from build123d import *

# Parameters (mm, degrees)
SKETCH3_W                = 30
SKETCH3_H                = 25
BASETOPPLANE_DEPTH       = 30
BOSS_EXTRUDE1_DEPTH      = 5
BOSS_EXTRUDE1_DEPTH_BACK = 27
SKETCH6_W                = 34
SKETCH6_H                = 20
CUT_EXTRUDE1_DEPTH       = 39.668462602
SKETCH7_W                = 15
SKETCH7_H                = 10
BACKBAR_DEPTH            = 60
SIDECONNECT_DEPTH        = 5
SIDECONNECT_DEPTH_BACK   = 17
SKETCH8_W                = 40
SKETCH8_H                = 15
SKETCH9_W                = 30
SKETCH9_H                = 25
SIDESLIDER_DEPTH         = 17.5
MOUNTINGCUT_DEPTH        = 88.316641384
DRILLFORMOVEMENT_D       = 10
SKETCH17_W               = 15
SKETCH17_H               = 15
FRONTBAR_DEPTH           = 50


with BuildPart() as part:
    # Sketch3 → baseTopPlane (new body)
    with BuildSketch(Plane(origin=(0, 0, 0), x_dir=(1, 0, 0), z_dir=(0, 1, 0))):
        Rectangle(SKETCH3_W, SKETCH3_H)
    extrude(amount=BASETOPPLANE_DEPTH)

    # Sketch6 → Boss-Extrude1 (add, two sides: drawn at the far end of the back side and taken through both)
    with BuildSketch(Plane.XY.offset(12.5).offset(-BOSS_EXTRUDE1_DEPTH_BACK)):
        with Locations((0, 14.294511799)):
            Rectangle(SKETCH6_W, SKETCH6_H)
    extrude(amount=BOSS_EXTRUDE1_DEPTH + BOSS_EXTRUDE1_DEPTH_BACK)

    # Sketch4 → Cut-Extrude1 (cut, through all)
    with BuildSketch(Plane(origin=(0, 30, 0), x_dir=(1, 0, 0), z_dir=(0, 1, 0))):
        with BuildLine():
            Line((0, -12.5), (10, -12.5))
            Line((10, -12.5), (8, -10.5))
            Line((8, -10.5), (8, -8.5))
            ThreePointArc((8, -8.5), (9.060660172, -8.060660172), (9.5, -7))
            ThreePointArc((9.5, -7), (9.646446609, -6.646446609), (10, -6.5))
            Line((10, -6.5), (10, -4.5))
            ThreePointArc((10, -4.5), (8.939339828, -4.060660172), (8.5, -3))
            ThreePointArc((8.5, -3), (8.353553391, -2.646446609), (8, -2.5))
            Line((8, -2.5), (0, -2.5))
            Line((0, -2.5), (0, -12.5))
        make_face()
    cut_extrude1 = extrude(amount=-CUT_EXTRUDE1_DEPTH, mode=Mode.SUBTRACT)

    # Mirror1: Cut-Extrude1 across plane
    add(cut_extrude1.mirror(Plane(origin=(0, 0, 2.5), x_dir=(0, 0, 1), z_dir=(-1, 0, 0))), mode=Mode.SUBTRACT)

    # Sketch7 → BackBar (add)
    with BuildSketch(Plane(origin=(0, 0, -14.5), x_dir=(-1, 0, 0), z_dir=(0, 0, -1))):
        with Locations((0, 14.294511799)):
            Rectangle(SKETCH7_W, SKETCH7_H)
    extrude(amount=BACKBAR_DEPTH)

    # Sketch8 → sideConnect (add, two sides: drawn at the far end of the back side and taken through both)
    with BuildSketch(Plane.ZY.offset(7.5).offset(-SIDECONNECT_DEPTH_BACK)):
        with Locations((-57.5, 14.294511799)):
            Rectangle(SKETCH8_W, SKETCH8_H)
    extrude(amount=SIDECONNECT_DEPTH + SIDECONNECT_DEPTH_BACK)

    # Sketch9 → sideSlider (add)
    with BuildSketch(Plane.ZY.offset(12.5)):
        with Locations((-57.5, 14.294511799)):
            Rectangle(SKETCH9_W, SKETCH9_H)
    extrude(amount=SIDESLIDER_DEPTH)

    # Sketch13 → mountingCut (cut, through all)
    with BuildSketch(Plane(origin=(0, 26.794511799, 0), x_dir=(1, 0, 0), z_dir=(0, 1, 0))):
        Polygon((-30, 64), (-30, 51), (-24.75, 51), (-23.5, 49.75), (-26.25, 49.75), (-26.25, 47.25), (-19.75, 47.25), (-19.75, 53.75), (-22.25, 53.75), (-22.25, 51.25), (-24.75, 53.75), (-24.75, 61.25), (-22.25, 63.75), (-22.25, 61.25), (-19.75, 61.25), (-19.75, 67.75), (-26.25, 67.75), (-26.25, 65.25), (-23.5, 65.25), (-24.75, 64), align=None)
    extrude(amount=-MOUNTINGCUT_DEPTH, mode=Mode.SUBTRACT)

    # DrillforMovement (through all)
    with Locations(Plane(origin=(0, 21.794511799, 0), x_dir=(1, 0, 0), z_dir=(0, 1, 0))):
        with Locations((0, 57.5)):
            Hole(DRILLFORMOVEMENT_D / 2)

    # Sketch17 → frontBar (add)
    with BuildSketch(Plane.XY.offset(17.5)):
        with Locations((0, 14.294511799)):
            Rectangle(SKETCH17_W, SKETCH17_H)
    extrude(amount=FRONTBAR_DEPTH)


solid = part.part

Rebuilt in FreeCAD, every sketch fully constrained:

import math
import FreeCAD as App
import Part
import Sketcher
from FreeCAD import Vector
Q = App.Units.Quantity

doc = App.newDocument("Part")
body = doc.addObject("PartDesign::Body", "Body")

# Sketch on XZ plane
sketch1 = doc.addObject("Sketcher::SketchObject", "Sketch")
body.addObject(sketch1)
sketch1.AttachmentSupport = (doc.XZ_Plane, [""])
sketch1.MapMode = "FlatFace"
sketch1.addGeometry([
    Part.LineSegment(Vector(-15, -12.5, 0), Vector(-15, 12.5, 0)),
    Part.LineSegment(Vector(-15, 12.5, 0), Vector(15, 12.5, 0)),
    Part.LineSegment(Vector(15, 12.5, 0), Vector(15, -12.5, 0)),
    Part.LineSegment(Vector(15, -12.5, 0), Vector(-15, -12.5, 0)),
], False)
sketch1.addConstraint([
    Sketcher.Constraint("Coincident", 0, 2, 1, 1),
    Sketcher.Constraint("Coincident", 1, 2, 2, 1),
    Sketcher.Constraint("Coincident", 2, 2, 3, 1),
    Sketcher.Constraint("Coincident", 3, 2, 0, 1),
    Sketcher.Constraint("Vertical", 0),
    Sketcher.Constraint("Horizontal", 1),
    Sketcher.Constraint("Vertical", 2),
    Sketcher.Constraint("Horizontal", 3),
    Sketcher.Constraint("Symmetric", 0, 2, 2, 2, -1, 1),
    Sketcher.Constraint("DistanceX", 1, 1, 1, 2, Q("30 mm")),
    Sketcher.Constraint("DistanceY", 0, 1, 0, 2, Q("25 mm")),
])
pad1 = doc.addObject("PartDesign::Pad", "Pad")
body.addObject(pad1)
pad1.Profile = sketch1
pad1.Length = 30
pad1.Reversed = True

# Sketch on XY plane
sketch2 = doc.addObject("Sketcher::SketchObject", "Sketch001")
body.addObject(sketch2)
sketch2.AttachmentSupport = (doc.XY_Plane, [""])
sketch2.MapMode = "FlatFace"
sketch2.AttachmentOffset = App.Placement(Vector(0, 0, 12.5), App.Rotation())
sketch2.addGeometry([
    Part.LineSegment(Vector(-17, 24.294512, 0), Vector(-17, 4.294512, 0)),
    Part.LineSegment(Vector(-17, 4.294512, 0), Vector(17, 4.294512, 0)),
    Part.LineSegment(Vector(17, 4.294512, 0), Vector(17, 24.294512, 0)),
    Part.LineSegment(Vector(17, 24.294512, 0), Vector(-17, 24.294512, 0)),
], False)
sketch2.addConstraint([
    Sketcher.Constraint("Coincident", 0, 2, 1, 1),
    Sketcher.Constraint("Coincident", 1, 2, 2, 1),
    Sketcher.Constraint("Coincident", 2, 2, 3, 1),
    Sketcher.Constraint("Coincident", 3, 2, 0, 1),
    Sketcher.Constraint("Vertical", 0),
    Sketcher.Constraint("Horizontal", 1),
    Sketcher.Constraint("Vertical", 2),
    Sketcher.Constraint("Horizontal", 3),
    Sketcher.Constraint("DistanceX", 1, 1, 1, 2, Q("34 mm")),
    Sketcher.Constraint("DistanceY", 0, 2, 0, 1, Q("20 mm")),
    Sketcher.Constraint("DistanceX", 0, 2, -1, 1, Q("17 mm")),
    Sketcher.Constraint("DistanceY", -1, 1, 0, 2, Q("4.294512 mm")),
])
pad2 = doc.addObject("PartDesign::Pad", "Pad001")
body.addObject(pad2)
pad2.Profile = sketch2
pad2.Type = "TwoLengths"
pad2.Length = 5
pad2.Length2 = 27

# Sketch on XZ plane
sketch3 = doc.addObject("Sketcher::SketchObject", "Sketch002")
body.addObject(sketch3)
sketch3.AttachmentSupport = (doc.XZ_Plane, [""])
sketch3.MapMode = "FlatFace"
sketch3.AttachmentOffset = App.Placement(Vector(0, 0, -30), App.Rotation())
sketch3.addGeometry([
    Part.LineSegment(Vector(0, 12.5, 0), Vector(10, 12.5, 0)),  # 0
    Part.LineSegment(Vector(10, 12.5, 0), Vector(8, 10.5, 0)),  # 1
    Part.LineSegment(Vector(8, 10.5, 0), Vector(8, 8.5, 0)),  # 2
    Part.ArcOfCircle(Part.Circle(Vector(8, 7, 0), Vector(0, 0, 1), 1.5), math.radians(0), math.radians(90)),  # 3
    Part.ArcOfCircle(Part.Circle(Vector(10, 7, 0), Vector(0, 0, 1), 0.5), math.radians(180), math.radians(270)),  # 4
    Part.LineSegment(Vector(10, 6.5, 0), Vector(10, 4.5, 0)),  # 5
    Part.ArcOfCircle(Part.Circle(Vector(10, 3, 0), Vector(0, 0, 1), 1.5), math.radians(90), math.radians(180)),  # 6
    Part.ArcOfCircle(Part.Circle(Vector(8, 3, 0), Vector(0, 0, 1), 0.5), math.radians(-90), math.radians(0)),  # 7
    Part.LineSegment(Vector(8, 2.5, 0), Vector(0, 2.5, 0)),  # 8
    Part.LineSegment(Vector(0, 2.5, 0), Vector(0, 12.5, 0)),  # 9
], False)
sketch3.addConstraint([
    Sketcher.Constraint("Coincident", 0, 2, 1, 1),
    Sketcher.Constraint("Coincident", 1, 2, 2, 1),
    Sketcher.Constraint("Coincident", 2, 2, 3, 2),
    Sketcher.Constraint("Tangent", 3, 1, 4, 1),
    Sketcher.Constraint("Coincident", 4, 2, 5, 1),
    Sketcher.Constraint("Coincident", 5, 2, 6, 1),
    Sketcher.Constraint("Tangent", 6, 2, 7, 2),
    Sketcher.Constraint("Tangent", 7, 1, 8, 1),
    Sketcher.Constraint("Coincident", 8, 2, 9, 1),
    Sketcher.Constraint("Coincident", 9, 2, 0, 1),
    Sketcher.Constraint("Horizontal", 0),
    Sketcher.Constraint("Vertical", 2),
    Sketcher.Constraint("Vertical", 5),
    Sketcher.Constraint("Horizontal", 8),
    Sketcher.Constraint("Vertical", 9),
    Sketcher.Constraint("Equal", 3, 6),
    Sketcher.Constraint("Equal", 4, 7),
    Sketcher.Constraint("PointOnObject", 8, 2, -2),
    Sketcher.Constraint("Horizontal", 3, 3, 4, 3),
    Sketcher.Constraint("Horizontal", 6, 3, 7, 3),
    Sketcher.Constraint("Vertical", 4, 3, 6, 3),
    Sketcher.Constraint("Vertical", 6, 3, 0, 2),
    Sketcher.Constraint("Vertical", 7, 3, 1, 2),
    Sketcher.Constraint("Vertical", 0, 2, 4, 2),
    Sketcher.Constraint("Equal", 2, 5),
    Sketcher.Constraint("Equal", 0, 9),
    Sketcher.Constraint("Radius", 3, Q("1.5 mm")),
    Sketcher.Constraint("Radius", 4, Q("0.5 mm")),
    Sketcher.Constraint("DistanceX", 0, 1, 0, 2, Q("10 mm")),
    Sketcher.Constraint("DistanceY", 2, 2, 2, 1, Q("2 mm")),
    Sketcher.Constraint("DistanceY", -1, 1, 3, 3, Q("7 mm")),
])
pocket1 = doc.addObject("PartDesign::Pocket", "Pocket")
body.addObject(pocket1)
pocket1.Profile = sketch3
pocket1.Type = "ThroughAll"
pocket1.Reversed = True
doc.recompute()

mirrored = doc.addObject("PartDesign::Mirrored", "Mirrored")
body.addObject(mirrored)
mirrored.Originals = [pocket1]
mirrored.MirrorPlane = (doc.YZ_Plane, [""])
body.Tip = mirrored

# Sketch on XY plane
sketch4 = doc.addObject("Sketcher::SketchObject", "Sketch003")
body.addObject(sketch4)
sketch4.AttachmentSupport = (doc.XY_Plane, [""])
sketch4.MapMode = "FlatFace"
sketch4.AttachmentOffset = App.Placement(Vector(0, 0, -14.5), App.Rotation())
sketch4.addGeometry([
    Part.LineSegment(Vector(7.5, 19.294512, 0), Vector(7.5, 9.294512, 0)),
    Part.LineSegment(Vector(7.5, 9.294512, 0), Vector(-7.5, 9.294512, 0)),
    Part.LineSegment(Vector(-7.5, 9.294512, 0), Vector(-7.5, 19.294512, 0)),
    Part.LineSegment(Vector(-7.5, 19.294512, 0), Vector(7.5, 19.294512, 0)),
], False)
sketch4.addConstraint([
    Sketcher.Constraint("Coincident", 0, 2, 1, 1),
    Sketcher.Constraint("Coincident", 1, 2, 2, 1),
    Sketcher.Constraint("Coincident", 2, 2, 3, 1),
    Sketcher.Constraint("Coincident", 3, 2, 0, 1),
    Sketcher.Constraint("Vertical", 0),
    Sketcher.Constraint("Horizontal", 1),
    Sketcher.Constraint("Vertical", 2),
    Sketcher.Constraint("Horizontal", 3),
    Sketcher.Constraint("DistanceX", 1, 2, 1, 1, Q("15 mm")),
    Sketcher.Constraint("DistanceY", 0, 2, 0, 1, Q("10 mm")),
    Sketcher.Constraint("DistanceX", -1, 1, 0, 2, Q("7.5 mm")),
    Sketcher.Constraint("DistanceY", -1, 1, 0, 2, Q("9.294512 mm")),
])
pad3 = doc.addObject("PartDesign::Pad", "Pad002")
body.addObject(pad3)
pad3.Profile = sketch4
pad3.Length = 60
pad3.Reversed = True

# Sketch on YZ plane
sketch5 = doc.addObject("Sketcher::SketchObject", "Sketch004")
body.addObject(sketch5)
sketch5.AttachmentSupport = (doc.YZ_Plane, [""])
sketch5.MapMode = "FlatFace"
sketch5.AttachmentOffset = App.Placement(Vector(0, 0, -7.5), App.Rotation())
sketch5.addGeometry([
    Part.LineSegment(Vector(21.794512, -77.5, 0), Vector(6.794512, -77.5, 0)),
    Part.LineSegment(Vector(6.794512, -77.5, 0), Vector(6.794512, -37.5, 0)),
    Part.LineSegment(Vector(6.794512, -37.5, 0), Vector(21.794512, -37.5, 0)),
    Part.LineSegment(Vector(21.794512, -37.5, 0), Vector(21.794512, -77.5, 0)),
], False)
sketch5.addConstraint([
    Sketcher.Constraint("Coincident", 0, 2, 1, 1),
    Sketcher.Constraint("Coincident", 1, 2, 2, 1),
    Sketcher.Constraint("Coincident", 2, 2, 3, 1),
    Sketcher.Constraint("Coincident", 3, 2, 0, 1),
    Sketcher.Constraint("Horizontal", 0),
    Sketcher.Constraint("Vertical", 1),
    Sketcher.Constraint("Horizontal", 2),
    Sketcher.Constraint("Vertical", 3),
    Sketcher.Constraint("DistanceX", 0, 2, 0, 1, Q("15 mm")),
    Sketcher.Constraint("DistanceY", 1, 1, 1, 2, Q("40 mm")),
    Sketcher.Constraint("DistanceY", 0, 2, -1, 1, Q("77.5 mm")),
    Sketcher.Constraint("DistanceX", -1, 1, 0, 2, Q("6.794512 mm")),
])
pad4 = doc.addObject("PartDesign::Pad", "Pad003")
body.addObject(pad4)
pad4.Profile = sketch5
pad4.Type = "TwoLengths"
pad4.Length = 5
pad4.Length2 = 17
pad4.Reversed = True

# Sketch on YZ plane
sketch6 = doc.addObject("Sketcher::SketchObject", "Sketch005")
body.addObject(sketch6)
sketch6.AttachmentSupport = (doc.YZ_Plane, [""])
sketch6.MapMode = "FlatFace"
sketch6.AttachmentOffset = App.Placement(Vector(0, 0, -12.5), App.Rotation())
sketch6.addGeometry([
    Part.LineSegment(Vector(26.794512, -72.5, 0), Vector(1.794512, -72.5, 0)),
    Part.LineSegment(Vector(1.794512, -72.5, 0), Vector(1.794512, -42.5, 0)),
    Part.LineSegment(Vector(1.794512, -42.5, 0), Vector(26.794512, -42.5, 0)),
    Part.LineSegment(Vector(26.794512, -42.5, 0), Vector(26.794512, -72.5, 0)),
], False)
sketch6.addConstraint([
    Sketcher.Constraint("Coincident", 0, 2, 1, 1),
    Sketcher.Constraint("Coincident", 1, 2, 2, 1),
    Sketcher.Constraint("Coincident", 2, 2, 3, 1),
    Sketcher.Constraint("Coincident", 3, 2, 0, 1),
    Sketcher.Constraint("Horizontal", 0),
    Sketcher.Constraint("Vertical", 1),
    Sketcher.Constraint("Horizontal", 2),
    Sketcher.Constraint("Vertical", 3),
    Sketcher.Constraint("DistanceX", 0, 2, 0, 1, Q("25 mm")),
    Sketcher.Constraint("DistanceY", 1, 1, 1, 2, Q("30 mm")),
    Sketcher.Constraint("DistanceY", 0, 2, -1, 1, Q("72.5 mm")),
    Sketcher.Constraint("DistanceX", -1, 1, 0, 2, Q("1.794512 mm")),
])
pad5 = doc.addObject("PartDesign::Pad", "Pad004")
body.addObject(pad5)
pad5.Profile = sketch6
pad5.Length = 17.5
pad5.Reversed = True

# Sketch on XZ plane
sketch7 = doc.addObject("Sketcher::SketchObject", "Sketch006")
body.addObject(sketch7)
sketch7.AttachmentSupport = (doc.XZ_Plane, [""])
sketch7.MapMode = "FlatFace"
sketch7.AttachmentOffset = App.Placement(Vector(0, 0, -26.794512), App.Rotation())
sketch7.addGeometry([
    Part.LineSegment(Vector(-30, -64, 0), Vector(-30, -51, 0)),  # 0
    Part.LineSegment(Vector(-30, -51, 0), Vector(-24.75, -51, 0)),  # 1
    Part.LineSegment(Vector(-24.75, -51, 0), Vector(-23.5, -49.75, 0)),  # 2
    Part.LineSegment(Vector(-23.5, -49.75, 0), Vector(-26.25, -49.75, 0)),  # 3
    Part.LineSegment(Vector(-26.25, -49.75, 0), Vector(-26.25, -47.25, 0)),  # 4
    Part.LineSegment(Vector(-26.25, -47.25, 0), Vector(-19.75, -47.25, 0)),  # 5
    Part.LineSegment(Vector(-19.75, -47.25, 0), Vector(-19.75, -53.75, 0)),  # 6
    Part.LineSegment(Vector(-19.75, -53.75, 0), Vector(-22.25, -53.75, 0)),  # 7
    Part.LineSegment(Vector(-22.25, -53.75, 0), Vector(-22.25, -51.25, 0)),  # 8
    Part.LineSegment(Vector(-22.25, -51.25, 0), Vector(-24.75, -53.75, 0)),  # 9
    Part.LineSegment(Vector(-24.75, -53.75, 0), Vector(-24.75, -61.25, 0)),  # 10
    Part.LineSegment(Vector(-24.75, -61.25, 0), Vector(-22.25, -63.75, 0)),  # 11
    Part.LineSegment(Vector(-22.25, -63.75, 0), Vector(-22.25, -61.25, 0)),  # 12
    Part.LineSegment(Vector(-22.25, -61.25, 0), Vector(-19.75, -61.25, 0)),  # 13
    Part.LineSegment(Vector(-19.75, -61.25, 0), Vector(-19.75, -67.75, 0)),  # 14
    Part.LineSegment(Vector(-19.75, -67.75, 0), Vector(-26.25, -67.75, 0)),  # 15
    Part.LineSegment(Vector(-26.25, -67.75, 0), Vector(-26.25, -65.25, 0)),  # 16
    Part.LineSegment(Vector(-26.25, -65.25, 0), Vector(-23.5, -65.25, 0)),  # 17
    Part.LineSegment(Vector(-23.5, -65.25, 0), Vector(-24.75, -64, 0)),  # 18
    Part.LineSegment(Vector(-24.75, -64, 0), Vector(-30, -64, 0)),  # 19
], False)
sketch7.addConstraint([
    Sketcher.Constraint("Coincident", 0, 2, 1, 1),
    Sketcher.Constraint("Coincident", 1, 2, 2, 1),
    Sketcher.Constraint("Coincident", 2, 2, 3, 1),
    Sketcher.Constraint("Coincident", 3, 2, 4, 1),
    Sketcher.Constraint("Coincident", 4, 2, 5, 1),
    Sketcher.Constraint("Coincident", 5, 2, 6, 1),
    Sketcher.Constraint("Coincident", 6, 2, 7, 1),
    Sketcher.Constraint("Coincident", 7, 2, 8, 1),
    Sketcher.Constraint("Coincident", 8, 2, 9, 1),
    Sketcher.Constraint("Coincident", 9, 2, 10, 1),
    Sketcher.Constraint("Coincident", 10, 2, 11, 1),
    Sketcher.Constraint("Coincident", 11, 2, 12, 1),
    Sketcher.Constraint("Coincident", 12, 2, 13, 1),
    Sketcher.Constraint("Coincident", 13, 2, 14, 1),
    Sketcher.Constraint("Coincident", 14, 2, 15, 1),
    Sketcher.Constraint("Coincident", 15, 2, 16, 1),
    Sketcher.Constraint("Coincident", 16, 2, 17, 1),
    Sketcher.Constraint("Coincident", 17, 2, 18, 1),
    Sketcher.Constraint("Coincident", 18, 2, 19, 1),
    Sketcher.Constraint("Coincident", 19, 2, 0, 1),
    Sketcher.Constraint("Vertical", 0),
    Sketcher.Constraint("Horizontal", 1),
    Sketcher.Constraint("Horizontal", 3),
    Sketcher.Constraint("Vertical", 4),
    Sketcher.Constraint("Horizontal", 5),
    Sketcher.Constraint("Vertical", 6),
    Sketcher.Constraint("Horizontal", 7),
    Sketcher.Constraint("Vertical", 8),
    Sketcher.Constraint("Vertical", 10),
    Sketcher.Constraint("Vertical", 12),
    Sketcher.Constraint("Horizontal", 13),
    Sketcher.Constraint("Vertical", 14),
    Sketcher.Constraint("Horizontal", 15),
    Sketcher.Constraint("Vertical", 16),
    Sketcher.Constraint("Horizontal", 17),
    Sketcher.Constraint("Horizontal", 19),
    Sketcher.Constraint("Parallel", 2, 9),
    Sketcher.Constraint("Perpendicular", 9, 11),
    Sketcher.Constraint("Parallel", 11, 18),
    Sketcher.Constraint("Horizontal", 7, 2, 9, 2),
    Sketcher.Constraint("Horizontal", 10, 2, 12, 2),
    Sketcher.Constraint("Vertical", 1, 2, 9, 2),
    Sketcher.Constraint("Vertical", 8, 2, 11, 2),
    Sketcher.Constraint("Vertical", 6, 2, 13, 2),
    Sketcher.Constraint("Vertical", 4, 2, 15, 2),
    Sketcher.Constraint("Vertical", 2, 2, 17, 2),
    Sketcher.Constraint("Vertical", 10, 2, 18, 2),
    Sketcher.Constraint("Equal", 13, 4),
    Sketcher.Constraint("Equal", 15, 6),
    Sketcher.Constraint("Equal", 4, 8),
    Sketcher.Constraint("Equal", 8, 12),
    Sketcher.Constraint("Equal", 6, 14),
    Sketcher.Constraint("Equal", 12, 16),
    Sketcher.Constraint("DistanceY", 0, 1, 0, 2, Q("13 mm")),
    Sketcher.Constraint("DistanceX", 5, 1, 5, 2, Q("6.5 mm")),
    Sketcher.Constraint("DistanceX", 7, 2, 7, 1, Q("2.5 mm")),
    Sketcher.Constraint("DistanceY", 10, 2, 10, 1, Q("7.5 mm")),
    Sketcher.Constraint("DistanceX", 0, 2, -1, 1, Q("30 mm")),
    Sketcher.Constraint("DistanceY", 0, 2, -1, 1, Q("51 mm")),
    Sketcher.Constraint("DistanceX", 1, 1, 1, 2, Q("5.25 mm")),
])
pocket2 = doc.addObject("PartDesign::Pocket", "Pocket001")
body.addObject(pocket2)
pocket2.Profile = sketch7
pocket2.Type = "ThroughAll"
pocket2.Reversed = True

# Sketch on XZ plane
sketch8 = doc.addObject("Sketcher::SketchObject", "Sketch007")
body.addObject(sketch8)
sketch8.AttachmentSupport = (doc.XZ_Plane, [""])
sketch8.MapMode = "FlatFace"
sketch8.AttachmentOffset = App.Placement(Vector(0, 0, -21.794512), App.Rotation())
sketch8.addGeometry(Part.Circle(Vector(0, -57.5, 0), Vector(0, 0, 1), 5), False)
sketch8.addConstraint([
    Sketcher.Constraint("PointOnObject", 0, 3, -2),
    Sketcher.Constraint("Diameter", 0, Q("10 mm")),
    Sketcher.Constraint("DistanceY", 0, 3, -1, 1, Q("57.5 mm")),
])
doc.recompute()
hole = doc.addObject("PartDesign::Hole", "Hole")
body.addObject(hole)
hole.Profile = sketch8
hole.ThreadType = "None"
hole.Diameter = 10
hole.DepthType = "ThroughAll"
hole.Reversed = True

# Sketch on XY plane
sketch9 = doc.addObject("Sketcher::SketchObject", "Sketch008")
body.addObject(sketch9)
sketch9.AttachmentSupport = (doc.XY_Plane, [""])
sketch9.MapMode = "FlatFace"
sketch9.AttachmentOffset = App.Placement(Vector(0, 0, 17.5), App.Rotation())
sketch9.addGeometry([
    Part.LineSegment(Vector(-7.5, 21.794512, 0), Vector(-7.5, 6.794512, 0)),
    Part.LineSegment(Vector(-7.5, 6.794512, 0), Vector(7.5, 6.794512, 0)),
    Part.LineSegment(Vector(7.5, 6.794512, 0), Vector(7.5, 21.794512, 0)),
    Part.LineSegment(Vector(7.5, 21.794512, 0), Vector(-7.5, 21.794512, 0)),
], False)
sketch9.addConstraint([
    Sketcher.Constraint("Coincident", 0, 2, 1, 1),
    Sketcher.Constraint("Coincident", 1, 2, 2, 1),
    Sketcher.Constraint("Coincident", 2, 2, 3, 1),
    Sketcher.Constraint("Coincident", 3, 2, 0, 1),
    Sketcher.Constraint("Vertical", 0),
    Sketcher.Constraint("Horizontal", 1),
    Sketcher.Constraint("Vertical", 2),
    Sketcher.Constraint("Horizontal", 3),
    Sketcher.Constraint("Equal", 3, 0),
    Sketcher.Constraint("DistanceX", 1, 1, 1, 2, Q("15 mm")),
    Sketcher.Constraint("DistanceX", 0, 2, -1, 1, Q("7.5 mm")),
    Sketcher.Constraint("DistanceY", -1, 1, 0, 2, Q("6.794512 mm")),
])
pad6 = doc.addObject("PartDesign::Pad", "Pad005")
body.addObject(pad6)
pad6.Profile = sketch9
pad6.Length = 50

doc.recompute()
